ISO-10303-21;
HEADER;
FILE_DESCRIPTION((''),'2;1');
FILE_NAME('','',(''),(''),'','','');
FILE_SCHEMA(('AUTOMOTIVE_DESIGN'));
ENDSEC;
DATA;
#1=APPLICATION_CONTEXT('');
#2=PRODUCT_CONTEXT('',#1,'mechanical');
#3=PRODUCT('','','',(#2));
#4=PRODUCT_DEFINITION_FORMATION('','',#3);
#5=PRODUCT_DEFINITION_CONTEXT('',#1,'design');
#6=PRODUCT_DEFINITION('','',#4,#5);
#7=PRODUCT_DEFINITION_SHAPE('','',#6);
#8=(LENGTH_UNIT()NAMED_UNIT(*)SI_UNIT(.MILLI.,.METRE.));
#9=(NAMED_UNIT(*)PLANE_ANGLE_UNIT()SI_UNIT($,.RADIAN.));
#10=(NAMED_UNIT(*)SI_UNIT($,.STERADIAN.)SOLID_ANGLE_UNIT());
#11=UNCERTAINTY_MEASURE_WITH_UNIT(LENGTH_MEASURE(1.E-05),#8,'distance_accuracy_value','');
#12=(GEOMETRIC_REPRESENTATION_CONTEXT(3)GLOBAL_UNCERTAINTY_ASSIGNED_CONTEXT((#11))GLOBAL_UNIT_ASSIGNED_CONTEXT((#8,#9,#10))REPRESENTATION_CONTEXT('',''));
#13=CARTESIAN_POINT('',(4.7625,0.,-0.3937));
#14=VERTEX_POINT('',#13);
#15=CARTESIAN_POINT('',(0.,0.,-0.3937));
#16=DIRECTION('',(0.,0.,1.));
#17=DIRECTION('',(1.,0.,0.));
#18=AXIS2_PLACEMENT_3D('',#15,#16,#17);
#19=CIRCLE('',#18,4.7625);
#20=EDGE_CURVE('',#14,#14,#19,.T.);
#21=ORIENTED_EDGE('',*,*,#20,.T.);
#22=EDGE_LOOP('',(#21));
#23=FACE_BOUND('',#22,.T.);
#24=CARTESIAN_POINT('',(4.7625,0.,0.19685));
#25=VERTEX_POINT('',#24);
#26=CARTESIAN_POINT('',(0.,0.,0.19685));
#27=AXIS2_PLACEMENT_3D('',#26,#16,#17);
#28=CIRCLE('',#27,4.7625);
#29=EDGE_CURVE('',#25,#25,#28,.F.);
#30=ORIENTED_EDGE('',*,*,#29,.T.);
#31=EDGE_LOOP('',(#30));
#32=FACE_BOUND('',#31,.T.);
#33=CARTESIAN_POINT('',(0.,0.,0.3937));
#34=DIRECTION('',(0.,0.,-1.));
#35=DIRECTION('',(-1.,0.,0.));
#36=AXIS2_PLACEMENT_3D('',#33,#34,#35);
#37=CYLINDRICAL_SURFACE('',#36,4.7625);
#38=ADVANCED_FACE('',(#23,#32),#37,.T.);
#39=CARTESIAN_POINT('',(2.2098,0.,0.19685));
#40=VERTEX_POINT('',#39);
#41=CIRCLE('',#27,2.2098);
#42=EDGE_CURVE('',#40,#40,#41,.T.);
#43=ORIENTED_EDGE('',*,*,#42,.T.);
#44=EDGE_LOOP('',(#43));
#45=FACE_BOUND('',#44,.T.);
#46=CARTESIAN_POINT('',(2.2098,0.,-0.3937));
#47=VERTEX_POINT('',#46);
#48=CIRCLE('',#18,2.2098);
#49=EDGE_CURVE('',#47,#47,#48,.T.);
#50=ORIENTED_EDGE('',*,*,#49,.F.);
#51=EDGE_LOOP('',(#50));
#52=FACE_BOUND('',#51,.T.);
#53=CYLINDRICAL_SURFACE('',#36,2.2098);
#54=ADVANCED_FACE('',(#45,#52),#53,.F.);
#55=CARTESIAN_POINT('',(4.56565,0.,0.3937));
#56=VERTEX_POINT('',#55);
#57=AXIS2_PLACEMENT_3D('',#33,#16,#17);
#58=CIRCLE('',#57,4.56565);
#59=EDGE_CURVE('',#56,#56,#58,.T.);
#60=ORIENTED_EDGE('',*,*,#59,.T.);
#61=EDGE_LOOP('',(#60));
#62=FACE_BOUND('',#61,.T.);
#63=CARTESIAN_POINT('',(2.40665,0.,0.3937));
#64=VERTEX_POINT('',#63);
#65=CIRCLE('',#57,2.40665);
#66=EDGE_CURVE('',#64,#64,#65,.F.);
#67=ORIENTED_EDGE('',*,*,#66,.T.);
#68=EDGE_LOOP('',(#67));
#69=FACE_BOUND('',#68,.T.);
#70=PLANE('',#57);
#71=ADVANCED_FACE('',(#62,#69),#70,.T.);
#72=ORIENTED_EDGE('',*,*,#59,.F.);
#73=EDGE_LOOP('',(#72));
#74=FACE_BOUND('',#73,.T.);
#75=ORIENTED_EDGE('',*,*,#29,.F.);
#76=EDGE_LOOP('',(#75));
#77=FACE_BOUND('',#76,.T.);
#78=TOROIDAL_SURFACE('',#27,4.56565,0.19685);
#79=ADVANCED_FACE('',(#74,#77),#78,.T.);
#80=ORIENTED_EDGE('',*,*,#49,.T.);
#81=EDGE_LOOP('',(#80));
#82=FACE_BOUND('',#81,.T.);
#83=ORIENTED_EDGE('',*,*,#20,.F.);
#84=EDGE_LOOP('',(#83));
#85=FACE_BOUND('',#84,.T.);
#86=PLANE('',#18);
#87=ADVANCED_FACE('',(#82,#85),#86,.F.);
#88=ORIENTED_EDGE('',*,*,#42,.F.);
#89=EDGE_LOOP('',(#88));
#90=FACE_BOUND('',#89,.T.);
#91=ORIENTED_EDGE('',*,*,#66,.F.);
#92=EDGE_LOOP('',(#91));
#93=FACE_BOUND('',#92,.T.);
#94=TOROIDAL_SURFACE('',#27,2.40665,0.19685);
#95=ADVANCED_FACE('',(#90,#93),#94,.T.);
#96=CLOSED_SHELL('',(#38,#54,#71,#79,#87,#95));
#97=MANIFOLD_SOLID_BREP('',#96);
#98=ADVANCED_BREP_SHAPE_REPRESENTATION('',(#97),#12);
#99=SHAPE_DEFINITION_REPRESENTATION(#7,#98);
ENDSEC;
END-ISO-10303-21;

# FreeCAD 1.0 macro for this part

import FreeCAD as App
import Part
import Sketcher
Q = App.Units.Quantity


def edges_at(feature, points):
    """Names of the edges that pass closest to the given points."""
    edges = feature.Shape.Edges
    near = lambda p: min(range(len(edges)), key=lambda i: edges[i].distToShape(Part.Vertex(*p))[0])
    return sorted({f"Edge{near(p) + 1}" for p in points})

doc = App.newDocument("Part")
body = doc.addObject("PartDesign::Body", "Body")

sketch1 = body.newObject("Sketcher::SketchObject", "Sketch")
sketch1.AttachmentSupport = (doc.getObject("XY_Plane"), [""])
sketch1.MapMode = "FlatFace"
sketch1.addGeometry(Part.Circle(App.Vector(0, 0, 0), App.Vector(0, 0, 1), 4.8), False)
sketch1.addGeometry(Part.Circle(App.Vector(0, 0, 0), App.Vector(0, 0, 1), 2.2), False)
sketch1.addConstraint(Sketcher.Constraint("Coincident", 0, 3, -1, 1))
sketch1.addConstraint(Sketcher.Constraint("Coincident", 1, 3, -1, 1))
sketch1.addConstraint(Sketcher.Constraint("Diameter", 0, Q("0.375 in")))
sketch1.addConstraint(Sketcher.Constraint("Diameter", 1, Q("0.174 in")))
pad1 = body.newObject("PartDesign::Pad", "Pad")
pad1.Profile = sketch1
pad1.Type = "TwoLengths"
pad1.Length = Q("0.0155 in")
pad1.Length2 = Q("0.0155 in")
doc.recompute()

fillet = body.newObject("PartDesign::Fillet", "Fillet")
fillet.Base = (pad1, edges_at(pad1, [(-4.763, 0, 0.394), (-2.21, 0, 0.394)]))
fillet.Radius = 0.19685

doc.recompute()
